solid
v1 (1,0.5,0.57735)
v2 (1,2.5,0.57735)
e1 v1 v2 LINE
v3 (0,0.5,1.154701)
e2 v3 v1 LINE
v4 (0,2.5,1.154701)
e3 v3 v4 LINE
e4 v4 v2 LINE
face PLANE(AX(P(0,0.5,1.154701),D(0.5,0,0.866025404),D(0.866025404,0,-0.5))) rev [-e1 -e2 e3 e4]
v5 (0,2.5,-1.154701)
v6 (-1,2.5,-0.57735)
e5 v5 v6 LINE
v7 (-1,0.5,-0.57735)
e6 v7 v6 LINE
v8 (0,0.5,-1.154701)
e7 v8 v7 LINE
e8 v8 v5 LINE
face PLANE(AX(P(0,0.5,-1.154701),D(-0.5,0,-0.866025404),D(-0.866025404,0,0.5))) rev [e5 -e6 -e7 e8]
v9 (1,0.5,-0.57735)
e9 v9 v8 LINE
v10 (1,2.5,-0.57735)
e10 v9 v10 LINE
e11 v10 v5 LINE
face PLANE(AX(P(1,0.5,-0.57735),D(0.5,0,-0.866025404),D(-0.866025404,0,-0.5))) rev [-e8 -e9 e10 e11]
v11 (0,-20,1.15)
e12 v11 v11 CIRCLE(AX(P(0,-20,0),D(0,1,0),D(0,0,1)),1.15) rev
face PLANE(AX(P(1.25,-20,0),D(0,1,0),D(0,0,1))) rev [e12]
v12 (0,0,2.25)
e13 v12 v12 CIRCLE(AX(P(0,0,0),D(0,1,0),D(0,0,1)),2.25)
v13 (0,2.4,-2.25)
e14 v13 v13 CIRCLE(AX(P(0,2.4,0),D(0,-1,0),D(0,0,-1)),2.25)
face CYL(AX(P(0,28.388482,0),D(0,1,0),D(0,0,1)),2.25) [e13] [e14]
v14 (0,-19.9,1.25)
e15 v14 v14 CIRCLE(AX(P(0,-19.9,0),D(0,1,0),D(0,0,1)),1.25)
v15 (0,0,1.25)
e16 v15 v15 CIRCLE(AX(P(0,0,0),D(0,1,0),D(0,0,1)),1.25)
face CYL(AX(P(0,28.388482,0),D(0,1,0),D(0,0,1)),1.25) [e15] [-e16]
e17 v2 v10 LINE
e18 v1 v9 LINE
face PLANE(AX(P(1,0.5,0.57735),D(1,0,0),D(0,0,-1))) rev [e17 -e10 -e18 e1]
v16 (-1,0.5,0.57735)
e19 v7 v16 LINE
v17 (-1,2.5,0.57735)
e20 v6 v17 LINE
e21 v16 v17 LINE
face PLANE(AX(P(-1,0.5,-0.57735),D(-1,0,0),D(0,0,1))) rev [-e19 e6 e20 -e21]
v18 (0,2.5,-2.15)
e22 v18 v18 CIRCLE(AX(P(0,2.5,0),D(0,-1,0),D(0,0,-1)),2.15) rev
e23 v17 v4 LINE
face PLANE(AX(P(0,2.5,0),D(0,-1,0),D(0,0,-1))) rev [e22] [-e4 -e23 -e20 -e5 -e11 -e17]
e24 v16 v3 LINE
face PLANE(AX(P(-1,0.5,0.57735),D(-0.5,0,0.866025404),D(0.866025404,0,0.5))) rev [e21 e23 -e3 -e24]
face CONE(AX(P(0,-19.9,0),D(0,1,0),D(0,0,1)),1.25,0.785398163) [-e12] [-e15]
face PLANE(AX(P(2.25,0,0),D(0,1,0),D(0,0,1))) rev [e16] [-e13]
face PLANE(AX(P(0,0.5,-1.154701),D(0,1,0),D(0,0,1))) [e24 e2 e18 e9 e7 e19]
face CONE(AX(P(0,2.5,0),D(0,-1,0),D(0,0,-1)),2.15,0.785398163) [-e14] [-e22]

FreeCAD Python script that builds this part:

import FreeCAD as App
import Part
import Sketcher
Q = App.Units.Quantity


def edges_at(feature, points):
    """Names of the edges that pass closest to the given points."""
    edges = feature.Shape.Edges
    near = lambda p: min(range(len(edges)), key=lambda i: edges[i].distToShape(Part.Vertex(*p))[0])
    return sorted({f"Edge{near(p) + 1}" for p in points})


def add_polygon(sketch, points):
    """Adds a closed chain of lines whose ends are joined by coincident constraints."""
    first, n = sketch.GeometryCount, len(points)
    for a, b in zip(points, points[1:] + points[:1]):
        sketch.addGeometry(Part.LineSegment(App.Vector(*a, 0), App.Vector(*b, 0)), False)
    for i in range(n):
        sketch.addConstraint(Sketcher.Constraint("Coincident", first + i, 2, first + (i + 1) % n, 1))

doc = App.newDocument("Part")
params = doc.addObject("Spreadsheet::Sheet", "Params")
for row, (alias, value) in enumerate([
    ("sketch1_width", "1 mm"),
    ("sketch1_height", "20 mm"),
    ("sketch1_height2", "22.5 mm"),
    ("sketch1_width2", "1.25 mm"),
    ("revolution_angle", "360 deg"),
    ("chamfer_size", "0.1 mm"),
    ("pocket1_length", "2 mm"),
], start=1):
    params.set(f"A{row}", alias)
    params.set(f"B{row}", "=" + value)
    params.setAlias(f"B{row}", alias)

body = doc.addObject("PartDesign::Body", "Body")

# Sketch on XY plane
sketch1 = body.newObject("Sketcher::SketchObject", "Sketch")
sketch1.AttachmentSupport = (doc.getObject("XY_Plane"), [""])
sketch1.MapMode = "FlatFace"
add_polygon(sketch1, [(0, 2.5), (0, -20), (1.2, -20), (1.2, 0), (2.2, 0), (2.2, 2.5)])  # lines 0-5
sketch1.addConstraint(Sketcher.Constraint("Vertical", 0))
sketch1.addConstraint(Sketcher.Constraint("Horizontal", 1))
sketch1.addConstraint(Sketcher.Constraint("Vertical", 2))
sketch1.addConstraint(Sketcher.Constraint("Horizontal", 3))
sketch1.addConstraint(Sketcher.Constraint("Vertical", 4))
sketch1.addConstraint(Sketcher.Constraint("Horizontal", 5))
sketch1.addConstraint(Sketcher.Constraint("PointOnObject", 0, 2, -2))
sketch1.addConstraint(Sketcher.Constraint("PointOnObject", 2, 2, -1))
sketch1.addConstraint(Sketcher.Constraint("DistanceX", 3, 1, 3, 2, Q("1 mm")))
sketch1.addConstraint(Sketcher.Constraint("DistanceY", 2, 1, 2, 2, Q("20 mm")))
sketch1.addConstraint(Sketcher.Constraint("DistanceY", 0, 2, 0, 1, Q("22.5 mm")))
sketch1.addConstraint(Sketcher.Constraint("DistanceX", 1, 1, 1, 2, Q("1.25 mm")))
sketch1.setExpression("Constraints[14]", "Params.sketch1_width")
sketch1.setExpression("Constraints[15]", "Params.sketch1_height")
sketch1.setExpression("Constraints[16]", "Params.sketch1_height2")
sketch1.setExpression("Constraints[17]", "Params.sketch1_width2")
revolution = body.newObject("PartDesign::Revolution", "Revolution")
revolution.Profile = sketch1
revolution.ReferenceAxis = (sketch1, ["V_Axis"])
revolution.setExpression("Angle", "Params.revolution_angle")
doc.recompute()

chamfer = body.newObject("PartDesign::Chamfer", "Chamfer")
chamfer.Base = (revolution, edges_at(revolution, [(0, -20, -1.25), (0, 2.5, -2.25)]))
chamfer.setExpression("Size", "Params.chamfer_size")

# Sketch on XZ plane
sketch2 = body.newObject("Sketcher::SketchObject", "Sketch001")
sketch2.AttachmentSupport = (doc.getObject("XZ_Plane"), [""])
sketch2.MapMode = "FlatFace"
sketch2.AttachmentOffset = App.Placement(App.Vector(0, 0, -2.5), App.Rotation())
add_polygon(sketch2, [(0, -1.2), (-1, -0.6), (-1, 0.6), (0, 1.2), (1, 0.6), (1, -0.6)])  # lines 0-5
sketch2.addConstraint(Sketcher.Constraint("Vertical", 1))
sketch2.addConstraint(Sketcher.Constraint("Vertical", 4))
sketch2.addConstraint(Sketcher.Constraint("Symmetric", 0, 2, 3, 2, -1, 1))
sketch2.addConstraint(Sketcher.Constraint("Symmetric", 2, 2, 5, 2, -1, 1))
sketch2.addConstraint(Sketcher.Constraint("PointOnObject", 2, 2, -2))
sketch2.addConstraint(Sketcher.Constraint("Parallel", 2, 5))
sketch2.addConstraint(Sketcher.Constraint("Horizontal", 1, 2, 3, 2))
sketch2.addConstraint(Sketcher.Constraint("Angle", 0, Q("150 deg")))
sketch2.addConstraint(Sketcher.Constraint("DistanceX", 0, 2, -1, 1, Q("1 mm")))
sketch2.addConstraint(Sketcher.Constraint("DistanceY", 1, 1, 1, 2, Q("1.154701 mm")))
pocket1 = body.newObject("PartDesign::Pocket", "Pocket")
pocket1.Profile = sketch2
pocket1.setExpression("Length", "Params.pocket1_length")
pocket1.Reversed = True

doc.recompute()
